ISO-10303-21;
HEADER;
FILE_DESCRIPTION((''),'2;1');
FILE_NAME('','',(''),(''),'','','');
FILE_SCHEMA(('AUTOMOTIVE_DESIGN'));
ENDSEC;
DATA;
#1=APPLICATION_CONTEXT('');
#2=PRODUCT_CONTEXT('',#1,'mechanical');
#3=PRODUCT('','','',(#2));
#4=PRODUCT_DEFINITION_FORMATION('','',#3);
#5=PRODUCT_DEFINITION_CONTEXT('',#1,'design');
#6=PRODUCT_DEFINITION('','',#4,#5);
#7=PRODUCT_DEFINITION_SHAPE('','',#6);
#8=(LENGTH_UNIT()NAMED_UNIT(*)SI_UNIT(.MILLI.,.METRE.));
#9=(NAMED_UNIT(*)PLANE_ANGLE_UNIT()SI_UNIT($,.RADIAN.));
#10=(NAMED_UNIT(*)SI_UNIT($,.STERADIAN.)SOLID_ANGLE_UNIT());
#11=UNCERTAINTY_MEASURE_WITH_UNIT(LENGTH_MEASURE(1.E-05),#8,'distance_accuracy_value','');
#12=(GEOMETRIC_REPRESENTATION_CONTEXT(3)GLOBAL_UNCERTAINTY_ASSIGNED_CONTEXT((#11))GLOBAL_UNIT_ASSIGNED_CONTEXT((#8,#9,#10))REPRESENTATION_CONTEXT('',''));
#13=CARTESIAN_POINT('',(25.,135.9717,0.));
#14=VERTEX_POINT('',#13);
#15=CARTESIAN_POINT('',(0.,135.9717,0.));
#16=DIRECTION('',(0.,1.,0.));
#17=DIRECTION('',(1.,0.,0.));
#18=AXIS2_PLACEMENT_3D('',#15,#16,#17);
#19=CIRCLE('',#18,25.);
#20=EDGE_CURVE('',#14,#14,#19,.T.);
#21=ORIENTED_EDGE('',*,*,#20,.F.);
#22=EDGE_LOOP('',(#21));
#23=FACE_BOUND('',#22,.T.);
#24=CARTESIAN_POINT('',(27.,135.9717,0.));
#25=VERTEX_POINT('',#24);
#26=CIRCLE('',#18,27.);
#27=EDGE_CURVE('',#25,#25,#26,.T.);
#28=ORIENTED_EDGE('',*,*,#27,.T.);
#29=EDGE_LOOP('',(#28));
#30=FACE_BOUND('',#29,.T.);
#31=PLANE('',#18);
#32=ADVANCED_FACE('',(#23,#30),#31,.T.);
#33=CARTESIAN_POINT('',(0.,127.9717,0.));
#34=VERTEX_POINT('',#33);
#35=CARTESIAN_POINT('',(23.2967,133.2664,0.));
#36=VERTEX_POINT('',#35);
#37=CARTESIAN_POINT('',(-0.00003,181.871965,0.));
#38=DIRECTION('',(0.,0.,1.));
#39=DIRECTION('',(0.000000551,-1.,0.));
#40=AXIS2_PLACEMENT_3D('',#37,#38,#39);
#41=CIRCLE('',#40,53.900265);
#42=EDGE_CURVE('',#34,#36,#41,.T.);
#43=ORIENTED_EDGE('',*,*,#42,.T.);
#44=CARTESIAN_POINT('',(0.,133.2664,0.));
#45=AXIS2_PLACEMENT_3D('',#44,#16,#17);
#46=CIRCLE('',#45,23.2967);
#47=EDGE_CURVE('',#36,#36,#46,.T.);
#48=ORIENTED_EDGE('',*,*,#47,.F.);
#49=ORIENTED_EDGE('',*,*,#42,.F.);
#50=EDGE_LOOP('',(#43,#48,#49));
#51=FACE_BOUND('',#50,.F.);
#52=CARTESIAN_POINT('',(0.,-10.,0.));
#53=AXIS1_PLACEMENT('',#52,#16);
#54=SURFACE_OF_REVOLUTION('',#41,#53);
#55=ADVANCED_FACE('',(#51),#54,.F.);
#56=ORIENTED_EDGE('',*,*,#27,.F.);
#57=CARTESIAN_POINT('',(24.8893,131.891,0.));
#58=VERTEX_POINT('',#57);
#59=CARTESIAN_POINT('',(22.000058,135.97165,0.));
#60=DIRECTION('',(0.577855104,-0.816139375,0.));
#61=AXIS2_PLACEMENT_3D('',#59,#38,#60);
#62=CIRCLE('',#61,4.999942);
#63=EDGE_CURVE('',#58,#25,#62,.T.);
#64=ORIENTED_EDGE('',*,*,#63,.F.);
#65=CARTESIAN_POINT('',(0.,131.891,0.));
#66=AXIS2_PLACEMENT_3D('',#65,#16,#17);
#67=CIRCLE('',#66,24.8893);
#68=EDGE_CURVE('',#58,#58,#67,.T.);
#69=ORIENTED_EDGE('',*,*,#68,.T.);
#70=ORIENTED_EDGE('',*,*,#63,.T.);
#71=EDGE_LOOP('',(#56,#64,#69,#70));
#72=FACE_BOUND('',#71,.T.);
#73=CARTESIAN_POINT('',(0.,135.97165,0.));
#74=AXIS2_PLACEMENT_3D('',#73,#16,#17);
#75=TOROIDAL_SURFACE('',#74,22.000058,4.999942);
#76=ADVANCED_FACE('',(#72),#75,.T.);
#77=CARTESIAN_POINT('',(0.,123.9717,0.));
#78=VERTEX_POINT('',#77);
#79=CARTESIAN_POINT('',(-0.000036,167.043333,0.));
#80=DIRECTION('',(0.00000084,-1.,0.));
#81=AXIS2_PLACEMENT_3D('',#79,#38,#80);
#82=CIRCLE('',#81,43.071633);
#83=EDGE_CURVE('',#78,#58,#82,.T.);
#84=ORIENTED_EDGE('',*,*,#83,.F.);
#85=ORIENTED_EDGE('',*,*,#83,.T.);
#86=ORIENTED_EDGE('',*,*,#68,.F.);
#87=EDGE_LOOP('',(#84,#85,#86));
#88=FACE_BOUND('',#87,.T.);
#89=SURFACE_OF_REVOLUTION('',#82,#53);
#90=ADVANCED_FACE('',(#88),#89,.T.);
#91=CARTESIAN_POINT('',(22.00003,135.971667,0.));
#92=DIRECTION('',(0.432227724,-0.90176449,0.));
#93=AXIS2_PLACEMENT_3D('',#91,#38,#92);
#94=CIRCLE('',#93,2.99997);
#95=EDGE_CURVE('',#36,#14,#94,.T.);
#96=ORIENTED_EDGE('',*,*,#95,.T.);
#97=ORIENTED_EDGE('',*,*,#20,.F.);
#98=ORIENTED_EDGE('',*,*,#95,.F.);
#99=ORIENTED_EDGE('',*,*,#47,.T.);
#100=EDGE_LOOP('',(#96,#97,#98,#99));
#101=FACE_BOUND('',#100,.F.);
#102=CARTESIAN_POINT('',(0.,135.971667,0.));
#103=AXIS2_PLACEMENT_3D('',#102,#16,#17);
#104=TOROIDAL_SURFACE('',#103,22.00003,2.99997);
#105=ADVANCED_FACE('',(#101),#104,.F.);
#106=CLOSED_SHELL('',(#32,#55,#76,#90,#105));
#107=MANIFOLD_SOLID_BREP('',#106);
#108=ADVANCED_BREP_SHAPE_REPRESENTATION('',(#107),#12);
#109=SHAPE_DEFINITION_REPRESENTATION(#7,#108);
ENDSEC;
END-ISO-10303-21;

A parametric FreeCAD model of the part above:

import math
import FreeCAD as App
import Part
import Sketcher
from FreeCAD import Vector

doc = App.newDocument("Part")
params = doc.addObject("Spreadsheet::Sheet", "Params")
for row, (alias, value) in enumerate([
    ("sketch1_radius", "3 mm"),
    ("sketch1_height", "4 mm"),
    ("sketch1_radius2", "5 mm"),
    ("sketch1_radius3", "53.9 mm"),
    ("revolution_angle", "360 deg"),
], start=1):
    params.set(f"A{row}", alias)
    params.set(f"B{row}", "=" + value)
    params.setAlias(f"B{row}", alias)

body = doc.addObject("PartDesign::Body", "Body")

# Sketch on XY plane
sketch1 = body.newObject("Sketcher::SketchObject", "Sketch")
sketch1.AttachmentSupport = (doc.getObject("XY_Plane"), [""])
sketch1.MapMode = "FlatFace"
sketch1.addGeometry(Part.ArcOfCircle(Part.Circle(Vector(22, 136, 0), Vector(0, 0, 1), 5), math.radians(-55), math.radians(0)), False)
sketch1.addGeometry(Part.LineSegment(Vector(27, 136, 0), Vector(25, 136, 0)), False)
sketch1.addGeometry(Part.ArcOfCircle(Part.Circle(Vector(22, 136, 0), Vector(0, 0, 1), 3), math.radians(-64), math.radians(0)), False)
sketch1.addGeometry(Part.ArcOfCircle(Part.Circle(Vector(0, 181.9, 0), Vector(0, 0, 1), 53.9), math.radians(-90), math.radians(-64)), False)
sketch1.addGeometry(Part.LineSegment(Vector(0, 128, 0), Vector(0, 124, 0)), False)
sketch1.addGeometry(Part.ArcOfCircle(Part.Circle(Vector(0, 167, 0), Vector(0, 0, 1), 43.1), math.radians(-90), math.radians(-55)), False)
sketch1.addConstraint(Sketcher.Constraint("Coincident", 0, 2, 1, 1))
sketch1.addConstraint(Sketcher.Constraint("Coincident", 1, 2, 2, 2))
sketch1.addConstraint(Sketcher.Constraint("Tangent", 2, 1, 3, 2))
sketch1.addConstraint(Sketcher.Constraint("Coincident", 3, 1, 4, 1))
sketch1.addConstraint(Sketcher.Constraint("Coincident", 4, 2, 5, 1))
sketch1.addConstraint(Sketcher.Constraint("Tangent", 5, 2, 0, 1))
sketch1.addConstraint(Sketcher.Constraint("Horizontal", 1))
sketch1.addConstraint(Sketcher.Constraint("Vertical", 4))
sketch1.addConstraint(Sketcher.Constraint("Coincident", 2, 3, 0, 3))
sketch1.addConstraint(Sketcher.Constraint("PointOnObject", 3, 3, -2))
sketch1.addConstraint(Sketcher.Constraint("PointOnObject", 5, 3, -2))
sketch1.addConstraint(Sketcher.Constraint("PointOnObject", 3, 1, -2))
sketch1.addConstraint(Sketcher.Constraint("Horizontal", 2, 3, 0, 2))
sketch1.addConstraint(Sketcher.Constraint("Radius", 2, 3.0))
sketch1.addConstraint(Sketcher.Constraint("DistanceY", 4, 2, 4, 1, 4.0))
sketch1.addConstraint(Sketcher.Constraint("Radius", 0, 5.0))
sketch1.addConstraint(Sketcher.Constraint("DistanceY", 3, 1, 0, 3, 8.0))
sketch1.addConstraint(Sketcher.Constraint("Radius", 3, 53.9))
sketch1.addConstraint(Sketcher.Constraint("DistanceY", -1, 1, 5, 3, 167.043))
sketch1.setExpression("Constraints[13]", "Params.sketch1_radius")
sketch1.setExpression("Constraints[14]", "Params.sketch1_height")
sketch1.setExpression("Constraints[15]", "Params.sketch1_radius2")
sketch1.setExpression("Constraints[17]", "Params.sketch1_radius3")
revolution = body.newObject("PartDesign::Revolution", "Revolution")
revolution.Profile = sketch1
revolution.ReferenceAxis = (sketch1, ["V_Axis"])
revolution.setExpression("Angle", "Params.revolution_angle")

doc.recompute()
